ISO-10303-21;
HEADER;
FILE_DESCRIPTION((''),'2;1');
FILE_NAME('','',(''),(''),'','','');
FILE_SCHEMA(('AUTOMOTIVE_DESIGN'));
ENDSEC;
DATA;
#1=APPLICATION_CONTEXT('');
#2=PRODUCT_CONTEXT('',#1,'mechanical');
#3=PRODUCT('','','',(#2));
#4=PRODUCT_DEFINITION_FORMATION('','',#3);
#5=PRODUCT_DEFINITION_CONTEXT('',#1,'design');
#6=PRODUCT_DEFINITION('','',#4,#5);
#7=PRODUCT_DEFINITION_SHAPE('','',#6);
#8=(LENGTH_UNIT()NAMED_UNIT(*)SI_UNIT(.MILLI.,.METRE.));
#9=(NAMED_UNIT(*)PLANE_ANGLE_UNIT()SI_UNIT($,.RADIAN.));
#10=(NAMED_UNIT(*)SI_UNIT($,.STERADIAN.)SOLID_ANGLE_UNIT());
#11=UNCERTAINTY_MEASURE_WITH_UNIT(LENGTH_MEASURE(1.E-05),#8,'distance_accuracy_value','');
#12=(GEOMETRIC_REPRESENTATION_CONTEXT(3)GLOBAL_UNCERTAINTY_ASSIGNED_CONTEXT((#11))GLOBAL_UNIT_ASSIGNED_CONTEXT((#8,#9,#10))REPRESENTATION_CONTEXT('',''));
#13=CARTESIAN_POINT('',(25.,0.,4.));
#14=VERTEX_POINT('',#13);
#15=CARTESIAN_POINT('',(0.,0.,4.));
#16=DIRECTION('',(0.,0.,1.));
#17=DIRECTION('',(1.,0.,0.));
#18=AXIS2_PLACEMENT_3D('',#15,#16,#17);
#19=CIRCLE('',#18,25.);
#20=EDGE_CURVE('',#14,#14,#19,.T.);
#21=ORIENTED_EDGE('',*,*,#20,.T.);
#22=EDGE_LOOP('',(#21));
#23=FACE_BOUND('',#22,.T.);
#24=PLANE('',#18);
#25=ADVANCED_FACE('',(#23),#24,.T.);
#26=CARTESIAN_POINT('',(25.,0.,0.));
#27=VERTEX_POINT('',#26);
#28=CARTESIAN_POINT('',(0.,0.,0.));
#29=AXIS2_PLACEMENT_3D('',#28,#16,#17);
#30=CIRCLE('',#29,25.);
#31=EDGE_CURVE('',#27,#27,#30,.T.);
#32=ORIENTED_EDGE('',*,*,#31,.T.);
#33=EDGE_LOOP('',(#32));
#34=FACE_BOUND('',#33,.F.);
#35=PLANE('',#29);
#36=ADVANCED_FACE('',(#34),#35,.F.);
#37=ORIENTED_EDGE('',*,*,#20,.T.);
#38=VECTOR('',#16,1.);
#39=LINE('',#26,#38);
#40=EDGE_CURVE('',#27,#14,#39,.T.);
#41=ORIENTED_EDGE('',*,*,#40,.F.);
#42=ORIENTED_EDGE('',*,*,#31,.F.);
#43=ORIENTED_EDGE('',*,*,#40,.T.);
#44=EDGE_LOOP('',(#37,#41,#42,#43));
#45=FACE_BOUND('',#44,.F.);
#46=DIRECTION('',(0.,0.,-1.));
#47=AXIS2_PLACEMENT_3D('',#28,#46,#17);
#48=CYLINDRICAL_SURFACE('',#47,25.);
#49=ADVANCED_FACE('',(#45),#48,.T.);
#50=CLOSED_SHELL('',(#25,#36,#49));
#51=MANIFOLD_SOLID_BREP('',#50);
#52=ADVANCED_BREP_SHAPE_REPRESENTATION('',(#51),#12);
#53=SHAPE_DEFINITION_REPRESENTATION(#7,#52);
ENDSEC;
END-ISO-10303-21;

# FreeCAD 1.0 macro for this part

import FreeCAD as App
import Part
import Sketcher

V = App.Vector
Q = App.Units.Quantity

doc = App.newDocument("Part")
body = doc.addObject("PartDesign::Body", "Body")

# Sketch on XY plane
sketch1 = body.newObject("Sketcher::SketchObject", "Sketch")
sketch1.AttachmentSupport = (doc.getObject("XY_Plane"), [""])
sketch1.MapMode = "FlatFace"
sketch1.addGeometry(Part.Circle(V(0, 0, 0), V(0, 0, 1), 25), False)
sketch1.addConstraint([
    Sketcher.Constraint("Coincident", 0, 3, -1, 1),
    Sketcher.Constraint("Diameter", 0, Q("50 mm")),
])
pad1 = body.newObject("PartDesign::Pad", "Pad")
pad1.Profile = sketch1
pad1.Length = 4

doc.recompute()
